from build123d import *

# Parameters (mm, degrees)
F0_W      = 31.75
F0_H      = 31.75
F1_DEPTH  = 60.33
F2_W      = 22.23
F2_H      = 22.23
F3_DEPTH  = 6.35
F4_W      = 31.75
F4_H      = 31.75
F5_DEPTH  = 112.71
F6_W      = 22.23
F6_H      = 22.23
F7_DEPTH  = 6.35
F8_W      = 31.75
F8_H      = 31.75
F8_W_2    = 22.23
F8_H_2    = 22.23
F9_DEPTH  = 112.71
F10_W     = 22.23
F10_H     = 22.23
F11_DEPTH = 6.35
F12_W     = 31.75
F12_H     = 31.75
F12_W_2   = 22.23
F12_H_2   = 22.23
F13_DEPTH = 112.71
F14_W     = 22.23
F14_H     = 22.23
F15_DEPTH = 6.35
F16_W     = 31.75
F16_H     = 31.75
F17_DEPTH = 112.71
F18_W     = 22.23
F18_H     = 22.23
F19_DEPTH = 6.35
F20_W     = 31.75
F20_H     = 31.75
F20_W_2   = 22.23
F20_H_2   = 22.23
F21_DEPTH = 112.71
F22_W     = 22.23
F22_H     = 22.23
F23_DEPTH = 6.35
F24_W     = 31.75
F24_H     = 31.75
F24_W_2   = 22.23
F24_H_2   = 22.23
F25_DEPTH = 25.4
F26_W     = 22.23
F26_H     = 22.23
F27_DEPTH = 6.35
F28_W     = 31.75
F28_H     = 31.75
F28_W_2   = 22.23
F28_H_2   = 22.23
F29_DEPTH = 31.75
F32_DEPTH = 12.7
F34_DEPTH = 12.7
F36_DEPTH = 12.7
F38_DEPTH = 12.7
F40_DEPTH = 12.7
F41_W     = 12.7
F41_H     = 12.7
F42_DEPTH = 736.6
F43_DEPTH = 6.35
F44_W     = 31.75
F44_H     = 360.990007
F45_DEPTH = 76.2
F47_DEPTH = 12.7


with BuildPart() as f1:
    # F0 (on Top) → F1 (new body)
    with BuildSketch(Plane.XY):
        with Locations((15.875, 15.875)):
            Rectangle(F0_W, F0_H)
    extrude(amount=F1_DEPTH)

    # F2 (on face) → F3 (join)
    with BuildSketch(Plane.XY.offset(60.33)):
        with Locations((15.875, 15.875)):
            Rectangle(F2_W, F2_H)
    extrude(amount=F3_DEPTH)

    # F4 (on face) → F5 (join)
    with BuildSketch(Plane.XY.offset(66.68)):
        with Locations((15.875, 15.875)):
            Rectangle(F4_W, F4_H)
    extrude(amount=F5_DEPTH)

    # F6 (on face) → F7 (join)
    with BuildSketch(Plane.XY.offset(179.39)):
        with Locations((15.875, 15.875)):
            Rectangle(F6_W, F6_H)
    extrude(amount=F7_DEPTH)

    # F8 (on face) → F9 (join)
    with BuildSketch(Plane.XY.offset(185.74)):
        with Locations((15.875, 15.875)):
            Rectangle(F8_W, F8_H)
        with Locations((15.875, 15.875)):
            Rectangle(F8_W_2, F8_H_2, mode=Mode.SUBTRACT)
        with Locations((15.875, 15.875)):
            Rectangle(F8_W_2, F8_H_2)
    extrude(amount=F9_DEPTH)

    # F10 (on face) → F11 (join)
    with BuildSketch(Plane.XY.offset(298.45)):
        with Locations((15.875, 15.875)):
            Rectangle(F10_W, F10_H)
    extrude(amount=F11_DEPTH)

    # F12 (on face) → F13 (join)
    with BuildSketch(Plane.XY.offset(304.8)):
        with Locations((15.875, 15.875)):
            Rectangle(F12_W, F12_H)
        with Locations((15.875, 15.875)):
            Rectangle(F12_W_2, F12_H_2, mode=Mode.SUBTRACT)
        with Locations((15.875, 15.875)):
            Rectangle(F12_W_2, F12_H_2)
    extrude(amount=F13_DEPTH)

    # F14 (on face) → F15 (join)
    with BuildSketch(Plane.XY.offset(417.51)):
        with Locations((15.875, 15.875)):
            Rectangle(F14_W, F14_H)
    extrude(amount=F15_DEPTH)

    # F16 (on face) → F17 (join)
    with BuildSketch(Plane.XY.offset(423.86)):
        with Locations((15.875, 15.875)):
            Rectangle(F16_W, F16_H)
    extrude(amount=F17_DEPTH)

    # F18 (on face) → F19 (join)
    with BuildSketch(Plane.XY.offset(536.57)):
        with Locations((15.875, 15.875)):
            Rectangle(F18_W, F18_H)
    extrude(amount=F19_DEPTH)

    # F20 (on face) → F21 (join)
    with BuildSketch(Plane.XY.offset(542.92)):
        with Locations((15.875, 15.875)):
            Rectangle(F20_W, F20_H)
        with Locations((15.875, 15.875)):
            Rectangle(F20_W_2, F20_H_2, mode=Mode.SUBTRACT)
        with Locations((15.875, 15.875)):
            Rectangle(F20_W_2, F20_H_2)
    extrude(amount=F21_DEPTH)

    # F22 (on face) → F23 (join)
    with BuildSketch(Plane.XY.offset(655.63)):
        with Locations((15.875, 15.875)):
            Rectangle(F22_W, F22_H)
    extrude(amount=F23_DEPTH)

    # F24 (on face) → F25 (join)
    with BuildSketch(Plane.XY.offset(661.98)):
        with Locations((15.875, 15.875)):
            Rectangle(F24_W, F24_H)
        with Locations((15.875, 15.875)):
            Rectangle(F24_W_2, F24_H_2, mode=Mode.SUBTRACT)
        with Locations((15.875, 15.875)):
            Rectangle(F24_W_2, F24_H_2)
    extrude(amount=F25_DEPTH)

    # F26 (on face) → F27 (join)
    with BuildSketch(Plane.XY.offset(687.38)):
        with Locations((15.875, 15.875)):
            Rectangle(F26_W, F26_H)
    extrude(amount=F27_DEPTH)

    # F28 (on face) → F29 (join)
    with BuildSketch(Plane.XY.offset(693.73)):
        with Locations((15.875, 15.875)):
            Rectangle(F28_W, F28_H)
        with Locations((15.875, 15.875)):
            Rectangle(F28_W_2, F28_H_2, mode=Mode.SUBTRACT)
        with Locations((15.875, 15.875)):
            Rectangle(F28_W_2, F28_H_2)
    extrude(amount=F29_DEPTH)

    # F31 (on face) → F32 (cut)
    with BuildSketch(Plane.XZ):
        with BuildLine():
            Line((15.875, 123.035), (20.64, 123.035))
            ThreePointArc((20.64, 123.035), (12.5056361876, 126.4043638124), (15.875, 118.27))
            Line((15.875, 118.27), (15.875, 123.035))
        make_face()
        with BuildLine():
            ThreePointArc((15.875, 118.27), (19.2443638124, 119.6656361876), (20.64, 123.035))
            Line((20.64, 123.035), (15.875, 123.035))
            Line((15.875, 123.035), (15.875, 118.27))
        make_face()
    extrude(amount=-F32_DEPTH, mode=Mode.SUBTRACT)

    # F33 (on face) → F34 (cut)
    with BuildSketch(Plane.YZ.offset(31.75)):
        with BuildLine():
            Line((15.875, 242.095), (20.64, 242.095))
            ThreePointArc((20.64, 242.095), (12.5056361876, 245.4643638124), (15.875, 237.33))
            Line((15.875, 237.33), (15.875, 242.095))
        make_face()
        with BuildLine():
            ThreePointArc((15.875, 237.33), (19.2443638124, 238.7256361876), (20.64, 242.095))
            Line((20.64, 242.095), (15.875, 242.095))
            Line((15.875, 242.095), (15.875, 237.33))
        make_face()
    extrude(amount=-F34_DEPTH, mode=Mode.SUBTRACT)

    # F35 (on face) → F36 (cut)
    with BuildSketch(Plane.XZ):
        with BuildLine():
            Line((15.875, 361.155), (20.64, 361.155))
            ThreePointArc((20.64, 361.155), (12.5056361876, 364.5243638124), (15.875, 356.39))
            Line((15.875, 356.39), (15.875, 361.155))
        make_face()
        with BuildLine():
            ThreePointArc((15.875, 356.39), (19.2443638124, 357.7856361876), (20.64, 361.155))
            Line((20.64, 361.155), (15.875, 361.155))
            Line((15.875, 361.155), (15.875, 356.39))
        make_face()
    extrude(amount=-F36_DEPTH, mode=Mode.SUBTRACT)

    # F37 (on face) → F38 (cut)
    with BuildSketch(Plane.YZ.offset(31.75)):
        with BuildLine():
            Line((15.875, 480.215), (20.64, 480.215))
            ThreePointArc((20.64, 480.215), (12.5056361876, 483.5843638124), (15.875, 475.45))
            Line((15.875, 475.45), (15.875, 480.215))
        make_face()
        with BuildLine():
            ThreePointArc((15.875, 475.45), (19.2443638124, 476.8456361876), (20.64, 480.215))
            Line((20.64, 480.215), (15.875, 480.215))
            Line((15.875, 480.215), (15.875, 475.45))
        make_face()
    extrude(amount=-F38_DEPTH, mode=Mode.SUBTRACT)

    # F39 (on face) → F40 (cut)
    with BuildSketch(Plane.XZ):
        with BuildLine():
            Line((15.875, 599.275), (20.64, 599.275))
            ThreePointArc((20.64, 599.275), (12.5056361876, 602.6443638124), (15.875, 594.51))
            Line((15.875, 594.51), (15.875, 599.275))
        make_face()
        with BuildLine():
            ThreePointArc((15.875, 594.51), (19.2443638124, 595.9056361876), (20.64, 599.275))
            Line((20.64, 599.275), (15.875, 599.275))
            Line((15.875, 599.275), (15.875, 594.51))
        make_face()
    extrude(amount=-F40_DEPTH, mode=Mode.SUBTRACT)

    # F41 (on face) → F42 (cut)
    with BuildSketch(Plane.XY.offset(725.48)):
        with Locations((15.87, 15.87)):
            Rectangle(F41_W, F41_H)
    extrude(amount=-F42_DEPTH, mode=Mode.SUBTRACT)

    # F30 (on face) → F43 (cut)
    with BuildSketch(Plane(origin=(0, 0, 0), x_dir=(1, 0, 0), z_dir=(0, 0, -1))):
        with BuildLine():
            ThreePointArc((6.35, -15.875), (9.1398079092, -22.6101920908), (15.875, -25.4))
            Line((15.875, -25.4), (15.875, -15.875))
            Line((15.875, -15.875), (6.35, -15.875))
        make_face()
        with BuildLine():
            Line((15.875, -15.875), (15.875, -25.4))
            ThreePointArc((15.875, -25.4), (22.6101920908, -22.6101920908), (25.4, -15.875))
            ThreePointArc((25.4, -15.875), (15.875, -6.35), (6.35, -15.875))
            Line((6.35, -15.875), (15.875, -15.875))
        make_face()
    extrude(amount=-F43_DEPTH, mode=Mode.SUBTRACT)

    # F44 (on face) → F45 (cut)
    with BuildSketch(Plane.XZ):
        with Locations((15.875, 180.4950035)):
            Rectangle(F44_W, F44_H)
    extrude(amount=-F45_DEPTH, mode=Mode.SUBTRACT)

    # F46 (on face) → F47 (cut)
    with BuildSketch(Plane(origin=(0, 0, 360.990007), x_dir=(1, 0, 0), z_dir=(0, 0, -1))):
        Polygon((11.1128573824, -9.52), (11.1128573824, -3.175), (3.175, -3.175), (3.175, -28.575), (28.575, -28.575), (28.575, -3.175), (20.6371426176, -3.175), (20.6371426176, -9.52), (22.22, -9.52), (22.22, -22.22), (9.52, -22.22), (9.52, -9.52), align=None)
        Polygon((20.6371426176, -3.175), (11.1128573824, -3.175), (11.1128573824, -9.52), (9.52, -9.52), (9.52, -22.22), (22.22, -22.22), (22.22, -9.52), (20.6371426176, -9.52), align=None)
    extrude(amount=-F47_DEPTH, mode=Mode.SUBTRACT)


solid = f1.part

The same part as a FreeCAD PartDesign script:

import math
import FreeCAD as App
import Part
import Sketcher
Q = App.Units.Quantity

doc = App.newDocument("Part")
body = doc.addObject("PartDesign::Body", "Body")

sketch1 = body.newObject("Sketcher::SketchObject", "Sketch")
sketch1.AttachmentSupport = (doc.getObject("XY_Plane"), [""])
sketch1.MapMode = "FlatFace"
sketch1.addGeometry(Part.LineSegment(App.Vector(0, 31.75, 0), App.Vector(0, 0, 0)), False)
sketch1.addGeometry(Part.LineSegment(App.Vector(0, 0, 0), App.Vector(31.75, 0, 0)), False)
sketch1.addGeometry(Part.LineSegment(App.Vector(31.75, 0, 0), App.Vector(31.75, 31.75, 0)), False)
sketch1.addGeometry(Part.LineSegment(App.Vector(31.75, 31.75, 0), App.Vector(0, 31.75, 0)), False)
sketch1.addConstraint(Sketcher.Constraint("Coincident", 0, 2, 1, 1))
sketch1.addConstraint(Sketcher.Constraint("Coincident", 1, 2, 2, 1))
sketch1.addConstraint(Sketcher.Constraint("Coincident", 2, 2, 3, 1))
sketch1.addConstraint(Sketcher.Constraint("Coincident", 3, 2, 0, 1))
sketch1.addConstraint(Sketcher.Constraint("Vertical", 0))
sketch1.addConstraint(Sketcher.Constraint("Horizontal", 1))
sketch1.addConstraint(Sketcher.Constraint("Vertical", 2))
sketch1.addConstraint(Sketcher.Constraint("Horizontal", 3))
sketch1.addConstraint(Sketcher.Constraint("Coincident", 0, 2, -1, 1))
sketch1.addConstraint(Sketcher.Constraint("Equal", 3, 0))
sketch1.addConstraint(Sketcher.Constraint("DistanceX", 1, 1, 1, 2, Q("1.25 in")))
pad1 = body.newObject("PartDesign::Pad", "Pad")
pad1.Profile = sketch1
pad1.Length = 60.33

sketch2 = body.newObject("Sketcher::SketchObject", "Sketch001")
sketch2.AttachmentSupport = (doc.getObject("XY_Plane"), [""])
sketch2.MapMode = "FlatFace"
sketch2.AttachmentOffset = App.Placement(App.Vector(0, 0, 60.33), App.Rotation())
sketch2.addGeometry(Part.LineSegment(App.Vector(4.76, 26.99, 0), App.Vector(4.76, 4.76, 0)), False)
sketch2.addGeometry(Part.LineSegment(App.Vector(4.76, 4.76, 0), App.Vector(26.99, 4.76, 0)), False)
sketch2.addGeometry(Part.LineSegment(App.Vector(26.99, 4.76, 0), App.Vector(26.99, 26.99, 0)), False)
sketch2.addGeometry(Part.LineSegment(App.Vector(26.99, 26.99, 0), App.Vector(4.76, 26.99, 0)), False)
sketch2.addConstraint(Sketcher.Constraint("Coincident", 0, 2, 1, 1))
sketch2.addConstraint(Sketcher.Constraint("Coincident", 1, 2, 2, 1))
sketch2.addConstraint(Sketcher.Constraint("Coincident", 2, 2, 3, 1))
sketch2.addConstraint(Sketcher.Constraint("Coincident", 3, 2, 0, 1))
sketch2.addConstraint(Sketcher.Constraint("Vertical", 0))
sketch2.addConstraint(Sketcher.Constraint("Horizontal", 1))
sketch2.addConstraint(Sketcher.Constraint("Vertical", 2))
sketch2.addConstraint(Sketcher.Constraint("Horizontal", 3))
sketch2.addConstraint(Sketcher.Constraint("Equal", 3, 0))
sketch2.addConstraint(Sketcher.Constraint("DistanceX", 1, 1, 1, 2, Q("22.23 mm")))
sketch2.addConstraint(Sketcher.Constraint("DistanceX", -1, 1, 0, 2, Q("4.76 mm")))
sketch2.addConstraint(Sketcher.Constraint("DistanceY", -1, 1, 0, 2, Q("4.76 mm")))
pad2 = body.newObject("PartDesign::Pad", "Pad001")
pad2.Profile = sketch2
pad2.Length = Q("0.25 in")

sketch3 = body.newObject("Sketcher::SketchObject", "Sketch002")
sketch3.AttachmentSupport = (doc.getObject("XY_Plane"), [""])
sketch3.MapMode = "FlatFace"
sketch3.AttachmentOffset = App.Placement(App.Vector(0, 0, 66.68), App.Rotation())
sketch3.addGeometry(Part.LineSegment(App.Vector(0, 31.75, 0), App.Vector(0, 0, 0)), False)
sketch3.addGeometry(Part.LineSegment(App.Vector(0, 0, 0), App.Vector(31.75, 0, 0)), False)
sketch3.addGeometry(Part.LineSegment(App.Vector(31.75, 0, 0), App.Vector(31.75, 31.75, 0)), False)
sketch3.addGeometry(Part.LineSegment(App.Vector(31.75, 31.75, 0), App.Vector(0, 31.75, 0)), False)
sketch3.addConstraint(Sketcher.Constraint("Coincident", 0, 2, 1, 1))
sketch3.addConstraint(Sketcher.Constraint("Coincident", 1, 2, 2, 1))
sketch3.addConstraint(Sketcher.Constraint("Coincident", 2, 2, 3, 1))
sketch3.addConstraint(Sketcher.Constraint("Coincident", 3, 2, 0, 1))
sketch3.addConstraint(Sketcher.Constraint("Vertical", 0))
sketch3.addConstraint(Sketcher.Constraint("Horizontal", 1))
sketch3.addConstraint(Sketcher.Constraint("Vertical", 2))
sketch3.addConstraint(Sketcher.Constraint("Horizontal", 3))
sketch3.addConstraint(Sketcher.Constraint("Coincident", 0, 2, -1, 1))
sketch3.addConstraint(Sketcher.Constraint("Equal", 3, 0))
sketch3.addConstraint(Sketcher.Constraint("DistanceX", 1, 1, 1, 2, Q("1.25 in")))
pad3 = body.newObject("PartDesign::Pad", "Pad002")
pad3.Profile = sketch3
pad3.Length = 112.71

sketch4 = body.newObject("Sketcher::SketchObject", "Sketch003")
sketch4.AttachmentSupport = (doc.getObject("XY_Plane"), [""])
sketch4.MapMode = "FlatFace"
sketch4.AttachmentOffset = App.Placement(App.Vector(0, 0, 179.39), App.Rotation())
sketch4.addGeometry(Part.LineSegment(App.Vector(4.76, 26.99, 0), App.Vector(4.76, 4.76, 0)), False)
sketch4.addGeometry(Part.LineSegment(App.Vector(4.76, 4.76, 0), App.Vector(26.99, 4.76, 0)), False)
sketch4.addGeometry(Part.LineSegment(App.Vector(26.99, 4.76, 0), App.Vector(26.99, 26.99, 0)), False)
sketch4.addGeometry(Part.LineSegment(App.Vector(26.99, 26.99, 0), App.Vector(4.76, 26.99, 0)), False)
sketch4.addConstraint(Sketcher.Constraint("Coincident", 0, 2, 1, 1))
sketch4.addConstraint(Sketcher.Constraint("Coincident", 1, 2, 2, 1))
sketch4.addConstraint(Sketcher.Constraint("Coincident", 2, 2, 3, 1))
sketch4.addConstraint(Sketcher.Constraint("Coincident", 3, 2, 0, 1))
sketch4.addConstraint(Sketcher.Constraint("Vertical", 0))
sketch4.addConstraint(Sketcher.Constraint("Horizontal", 1))
sketch4.addConstraint(Sketcher.Constraint("Vertical", 2))
sketch4.addConstraint(Sketcher.Constraint("Horizontal", 3))
sketch4.addConstraint(Sketcher.Constraint("Equal", 3, 0))
sketch4.addConstraint(Sketcher.Constraint("DistanceX", 1, 1, 1, 2, Q("22.23 mm")))
sketch4.addConstraint(Sketcher.Constraint("DistanceX", -1, 1, 0, 2, Q("4.76 mm")))
sketch4.addConstraint(Sketcher.Constraint("DistanceY", -1, 1, 0, 2, Q("4.76 mm")))
pad4 = body.newObject("PartDesign::Pad", "Pad003")
pad4.Profile = sketch4
pad4.Length = Q("0.25 in")

sketch5 = body.newObject("Sketcher::SketchObject", "Sketch004")
sketch5.AttachmentSupport = (doc.getObject("XY_Plane"), [""])
sketch5.MapMode = "FlatFace"
sketch5.AttachmentOffset = App.Placement(App.Vector(0, 0, 185.74), App.Rotation())
sketch5.addGeometry(Part.LineSegment(App.Vector(0, 31.75, 0), App.Vector(0, 0, 0)), False)
sketch5.addGeometry(Part.LineSegment(App.Vector(0, 0, 0), App.Vector(31.75, 0, 0)), False)
sketch5.addGeometry(Part.LineSegment(App.Vector(31.75, 0, 0), App.Vector(31.75, 31.75, 0)), False)
sketch5.addGeometry(Part.LineSegment(App.Vector(31.75, 31.75, 0), App.Vector(0, 31.75, 0)), False)
sketch5.addConstraint(Sketcher.Constraint("Coincident", 0, 2, 1, 1))
sketch5.addConstraint(Sketcher.Constraint("Coincident", 1, 2, 2, 1))
sketch5.addConstraint(Sketcher.Constraint("Coincident", 2, 2, 3, 1))
sketch5.addConstraint(Sketcher.Constraint("Coincident", 3, 2, 0, 1))
sketch5.addConstraint(Sketcher.Constraint("Vertical", 0))
sketch5.addConstraint(Sketcher.Constraint("Horizontal", 1))
sketch5.addConstraint(Sketcher.Constraint("Vertical", 2))
sketch5.addConstraint(Sketcher.Constraint("Horizontal", 3))
sketch5.addConstraint(Sketcher.Constraint("Coincident", 0, 2, -1, 1))
sketch5.addConstraint(Sketcher.Constraint("Equal", 3, 0))
sketch5.addConstraint(Sketcher.Constraint("DistanceX", 1, 1, 1, 2, Q("1.25 in")))
pad5 = body.newObject("PartDesign::Pad", "Pad004")
pad5.Profile = sketch5
pad5.Length = 112.71

sketch6 = body.newObject("Sketcher::SketchObject", "Sketch005")
sketch6.AttachmentSupport = (doc.getObject("XY_Plane"), [""])
sketch6.MapMode = "FlatFace"
sketch6.AttachmentOffset = App.Placement(App.Vector(0, 0, 11.75 * 25.4), App.Rotation())
sketch6.addGeometry(Part.LineSegment(App.Vector(4.76, 26.99, 0), App.Vector(4.76, 4.76, 0)), False)
sketch6.addGeometry(Part.LineSegment(App.Vector(4.76, 4.76, 0), App.Vector(26.99, 4.76, 0)), False)
sketch6.addGeometry(Part.LineSegment(App.Vector(26.99, 4.76, 0), App.Vector(26.99, 26.99, 0)), False)
sketch6.addGeometry(Part.LineSegment(App.Vector(26.99, 26.99, 0), App.Vector(4.76, 26.99, 0)), False)
sketch6.addConstraint(Sketcher.Constraint("Coincident", 0, 2, 1, 1))
sketch6.addConstraint(Sketcher.Constraint("Coincident", 1, 2, 2, 1))
sketch6.addConstraint(Sketcher.Constraint("Coincident", 2, 2, 3, 1))
sketch6.addConstraint(Sketcher.Constraint("Coincident", 3, 2, 0, 1))
sketch6.addConstraint(Sketcher.Constraint("Vertical", 0))
sketch6.addConstraint(Sketcher.Constraint("Horizontal", 1))
sketch6.addConstraint(Sketcher.Constraint("Vertical", 2))
sketch6.addConstraint(Sketcher.Constraint("Horizontal", 3))
sketch6.addConstraint(Sketcher.Constraint("Equal", 3, 0))
sketch6.addConstraint(Sketcher.Constraint("DistanceX", 1, 1, 1, 2, Q("22.23 mm")))
sketch6.addConstraint(Sketcher.Constraint("DistanceX", -1, 1, 0, 2, Q("4.76 mm")))
sketch6.addConstraint(Sketcher.Constraint("DistanceY", -1, 1, 0, 2, Q("4.76 mm")))
pad6 = body.newObject("PartDesign::Pad", "Pad005")
pad6.Profile = sketch6
pad6.Length = Q("0.25 in")

sketch7 = body.newObject("Sketcher::SketchObject", "Sketch006")
sketch7.AttachmentSupport = (doc.getObject("XY_Plane"), [""])
sketch7.MapMode = "FlatFace"
sketch7.AttachmentOffset = App.Placement(App.Vector(0, 0, 12 * 25.4), App.Rotation())
sketch7.addGeometry(Part.LineSegment(App.Vector(0, 31.75, 0), App.Vector(0, 0, 0)), False)
sketch7.addGeometry(Part.LineSegment(App.Vector(0, 0, 0), App.Vector(31.75, 0, 0)), False)
sketch7.addGeometry(Part.LineSegment(App.Vector(31.75, 0, 0), App.Vector(31.75, 31.75, 0)), False)
sketch7.addGeometry(Part.LineSegment(App.Vector(31.75, 31.75, 0), App.Vector(0, 31.75, 0)), False)
sketch7.addConstraint(Sketcher.Constraint("Coincident", 0, 2, 1, 1))
sketch7.addConstraint(Sketcher.Constraint("Coincident", 1, 2, 2, 1))
sketch7.addConstraint(Sketcher.Constraint("Coincident", 2, 2, 3, 1))
sketch7.addConstraint(Sketcher.Constraint("Coincident", 3, 2, 0, 1))
sketch7.addConstraint(Sketcher.Constraint("Vertical", 0))
sketch7.addConstraint(Sketcher.Constraint("Horizontal", 1))
sketch7.addConstraint(Sketcher.Constraint("Vertical", 2))
sketch7.addConstraint(Sketcher.Constraint("Horizontal", 3))
sketch7.addConstraint(Sketcher.Constraint("Coincident", 0, 2, -1, 1))
sketch7.addConstraint(Sketcher.Constraint("Equal", 3, 0))
sketch7.addConstraint(Sketcher.Constraint("DistanceX", 1, 1, 1, 2, Q("1.25 in")))
pad7 = body.newObject("PartDesign::Pad", "Pad006")
pad7.Profile = sketch7
pad7.Length = 112.71

sketch8 = body.newObject("Sketcher::SketchObject", "Sketch007")
sketch8.AttachmentSupport = (doc.getObject("XY_Plane"), [""])
sketch8.MapMode = "FlatFace"
sketch8.AttachmentOffset = App.Placement(App.Vector(0, 0, 417.51), App.Rotation())
sketch8.addGeometry(Part.LineSegment(App.Vector(4.76, 26.99, 0), App.Vector(4.76, 4.76, 0)), False)
sketch8.addGeometry(Part.LineSegment(App.Vector(4.76, 4.76, 0), App.Vector(26.99, 4.76, 0)), False)
sketch8.addGeometry(Part.LineSegment(App.Vector(26.99, 4.76, 0), App.Vector(26.99, 26.99, 0)), False)
sketch8.addGeometry(Part.LineSegment(App.Vector(26.99, 26.99, 0), App.Vector(4.76, 26.99, 0)), False)
sketch8.addConstraint(Sketcher.Constraint("Coincident", 0, 2, 1, 1))
sketch8.addConstraint(Sketcher.Constraint("Coincident", 1, 2, 2, 1))
sketch8.addConstraint(Sketcher.Constraint("Coincident", 2, 2, 3, 1))
sketch8.addConstraint(Sketcher.Constraint("Coincident", 3, 2, 0, 1))
sketch8.addConstraint(Sketcher.Constraint("Vertical", 0))
sketch8.addConstraint(Sketcher.Constraint("Horizontal", 1))
sketch8.addConstraint(Sketcher.Constraint("Vertical", 2))
sketch8.addConstraint(Sketcher.Constraint("Horizontal", 3))
sketch8.addConstraint(Sketcher.Constraint("Equal", 3, 0))
sketch8.addConstraint(Sketcher.Constraint("DistanceX", 1, 1, 1, 2, Q("22.23 mm")))
sketch8.addConstraint(Sketcher.Constraint("DistanceX", -1, 1, 0, 2, Q("4.76 mm")))
sketch8.addConstraint(Sketcher.Constraint("DistanceY", -1, 1, 0, 2, Q("4.76 mm")))
pad8 = body.newObject("PartDesign::Pad", "Pad007")
pad8.Profile = sketch8
pad8.Length = Q("0.25 in")

sketch9 = body.newObject("Sketcher::SketchObject", "Sketch008")
sketch9.AttachmentSupport = (doc.getObject("XY_Plane"), [""])
sketch9.MapMode = "FlatFace"
sketch9.AttachmentOffset = App.Placement(App.Vector(0, 0, 423.86), App.Rotation())
sketch9.addGeometry(Part.LineSegment(App.Vector(0, 31.75, 0), App.Vector(0, 0, 0)), False)
sketch9.addGeometry(Part.LineSegment(App.Vector(0, 0, 0), App.Vector(31.75, 0, 0)), False)
sketch9.addGeometry(Part.LineSegment(App.Vector(31.75, 0, 0), App.Vector(31.75, 31.75, 0)), False)
sketch9.addGeometry(Part.LineSegment(App.Vector(31.75, 31.75, 0), App.Vector(0, 31.75, 0)), False)
sketch9.addConstraint(Sketcher.Constraint("Coincident", 0, 2, 1, 1))
sketch9.addConstraint(Sketcher.Constraint("Coincident", 1, 2, 2, 1))
sketch9.addConstraint(Sketcher.Constraint("Coincident", 2, 2, 3, 1))
sketch9.addConstraint(Sketcher.Constraint("Coincident", 3, 2, 0, 1))
sketch9.addConstraint(Sketcher.Constraint("Vertical", 0))
sketch9.addConstraint(Sketcher.Constraint("Horizontal", 1))
sketch9.addConstraint(Sketcher.Constraint("Vertical", 2))
sketch9.addConstraint(Sketcher.Constraint("Horizontal", 3))
sketch9.addConstraint(Sketcher.Constraint("Coincident", 0, 2, -1, 1))
sketch9.addConstraint(Sketcher.Constraint("Equal", 3, 0))
sketch9.addConstraint(Sketcher.Constraint("DistanceX", 1, 1, 1, 2, Q("1.25 in")))
pad9 = body.newObject("PartDesign::Pad", "Pad008")
pad9.Profile = sketch9
pad9.Length = 112.71

sketch10 = body.newObject("Sketcher::SketchObject", "Sketch009")
sketch10.AttachmentSupport = (doc.getObject("XY_Plane"), [""])
sketch10.MapMode = "FlatFace"
sketch10.AttachmentOffset = App.Placement(App.Vector(0, 0, 536.57), App.Rotation())
sketch10.addGeometry(Part.LineSegment(App.Vector(4.76, 26.99, 0), App.Vector(4.76, 4.76, 0)), False)
sketch10.addGeometry(Part.LineSegment(App.Vector(4.76, 4.76, 0), App.Vector(26.99, 4.76, 0)), False)
sketch10.addGeometry(Part.LineSegment(App.Vector(26.99, 4.76, 0), App.Vector(26.99, 26.99, 0)), False)
sketch10.addGeometry(Part.LineSegment(App.Vector(26.99, 26.99, 0), App.Vector(4.76, 26.99, 0)), False)
sketch10.addConstraint(Sketcher.Constraint("Coincident", 0, 2, 1, 1))
sketch10.addConstraint(Sketcher.Constraint("Coincident", 1, 2, 2, 1))
sketch10.addConstraint(Sketcher.Constraint("Coincident", 2, 2, 3, 1))
sketch10.addConstraint(Sketcher.Constraint("Coincident", 3, 2, 0, 1))
sketch10.addConstraint(Sketcher.Constraint("Vertical", 0))
sketch10.addConstraint(Sketcher.Constraint("Horizontal", 1))
sketch10.addConstraint(Sketcher.Constraint("Vertical", 2))
sketch10.addConstraint(Sketcher.Constraint("Horizontal", 3))
sketch10.addConstraint(Sketcher.Constraint("Equal", 3, 0))
sketch10.addConstraint(Sketcher.Constraint("DistanceX", 1, 1, 1, 2, Q("22.23 mm")))
sketch10.addConstraint(Sketcher.Constraint("DistanceX", -1, 1, 0, 2, Q("4.76 mm")))
sketch10.addConstraint(Sketcher.Constraint("DistanceY", -1, 1, 0, 2, Q("4.76 mm")))
pad10 = body.newObject("PartDesign::Pad", "Pad009")
pad10.Profile = sketch10
pad10.Length = Q("0.25 in")

sketch11 = body.newObject("Sketcher::SketchObject", "Sketch010")
sketch11.AttachmentSupport = (doc.getObject("XY_Plane"), [""])
sketch11.MapMode = "FlatFace"
sketch11.AttachmentOffset = App.Placement(App.Vector(0, 0, 542.92), App.Rotation())
sketch11.addGeometry(Part.LineSegment(App.Vector(0, 31.75, 0), App.Vector(0, 0, 0)), False)
sketch11.addGeometry(Part.LineSegment(App.Vector(0, 0, 0), App.Vector(31.75, 0, 0)), False)
sketch11.addGeometry(Part.LineSegment(App.Vector(31.75, 0, 0), App.Vector(31.75, 31.75, 0)), False)
sketch11.addGeometry(Part.LineSegment(App.Vector(31.75, 31.75, 0), App.Vector(0, 31.75, 0)), False)
sketch11.addConstraint(Sketcher.Constraint("Coincident", 0, 2, 1, 1))
sketch11.addConstraint(Sketcher.Constraint("Coincident", 1, 2, 2, 1))
sketch11.addConstraint(Sketcher.Constraint("Coincident", 2, 2, 3, 1))
sketch11.addConstraint(Sketcher.Constraint("Coincident", 3, 2, 0, 1))
sketch11.addConstraint(Sketcher.Constraint("Vertical", 0))
sketch11.addConstraint(Sketcher.Constraint("Horizontal", 1))
sketch11.addConstraint(Sketcher.Constraint("Vertical", 2))
sketch11.addConstraint(Sketcher.Constraint("Horizontal", 3))
sketch11.addConstraint(Sketcher.Constraint("Coincident", 0, 2, -1, 1))
sketch11.addConstraint(Sketcher.Constraint("Equal", 3, 0))
sketch11.addConstraint(Sketcher.Constraint("DistanceX", 1, 1, 1, 2, Q("1.25 in")))
pad11 = body.newObject("PartDesign::Pad", "Pad010")
pad11.Profile = sketch11
pad11.Length = 112.71

sketch12 = body.newObject("Sketcher::SketchObject", "Sketch011")
sketch12.AttachmentSupport = (doc.getObject("XY_Plane"), [""])
sketch12.MapMode = "FlatFace"
sketch12.AttachmentOffset = App.Placement(App.Vector(0, 0, 655.63), App.Rotation())
sketch12.addGeometry(Part.LineSegment(App.Vector(4.76, 26.99, 0), App.Vector(4.76, 4.76, 0)), False)
sketch12.addGeometry(Part.LineSegment(App.Vector(4.76, 4.76, 0), App.Vector(26.99, 4.76, 0)), False)
sketch12.addGeometry(Part.LineSegment(App.Vector(26.99, 4.76, 0), App.Vector(26.99, 26.99, 0)), False)
sketch12.addGeometry(Part.LineSegment(App.Vector(26.99, 26.99, 0), App.Vector(4.76, 26.99, 0)), False)
sketch12.addConstraint(Sketcher.Constraint("Coincident", 0, 2, 1, 1))
sketch12.addConstraint(Sketcher.Constraint("Coincident", 1, 2, 2, 1))
sketch12.addConstraint(Sketcher.Constraint("Coincident", 2, 2, 3, 1))
sketch12.addConstraint(Sketcher.Constraint("Coincident", 3, 2, 0, 1))
sketch12.addConstraint(Sketcher.Constraint("Vertical", 0))
sketch12.addConstraint(Sketcher.Constraint("Horizontal", 1))
sketch12.addConstraint(Sketcher.Constraint("Vertical", 2))
sketch12.addConstraint(Sketcher.Constraint("Horizontal", 3))
sketch12.addConstraint(Sketcher.Constraint("Equal", 3, 0))
sketch12.addConstraint(Sketcher.Constraint("DistanceX", 1, 1, 1, 2, Q("22.23 mm")))
sketch12.addConstraint(Sketcher.Constraint("DistanceX", -1, 1, 0, 2, Q("4.76 mm")))
sketch12.addConstraint(Sketcher.Constraint("DistanceY", -1, 1, 0, 2, Q("4.76 mm")))
pad12 = body.newObject("PartDesign::Pad", "Pad011")
pad12.Profile = sketch12
pad12.Length = Q("0.25 in")

sketch13 = body.newObject("Sketcher::SketchObject", "Sketch012")
sketch13.AttachmentSupport = (doc.getObject("XY_Plane"), [""])
sketch13.MapMode = "FlatFace"
sketch13.AttachmentOffset = App.Placement(App.Vector(0, 0, 661.98), App.Rotation())
sketch13.addGeometry(Part.LineSegment(App.Vector(0, 31.75, 0), App.Vector(0, 0, 0)), False)
sketch13.addGeometry(Part.LineSegment(App.Vector(0, 0, 0), App.Vector(31.75, 0, 0)), False)
sketch13.addGeometry(Part.LineSegment(App.Vector(31.75, 0, 0), App.Vector(31.75, 31.75, 0)), False)
sketch13.addGeometry(Part.LineSegment(App.Vector(31.75, 31.75, 0), App.Vector(0, 31.75, 0)), False)
sketch13.addConstraint(Sketcher.Constraint("Coincident", 0, 2, 1, 1))
sketch13.addConstraint(Sketcher.Constraint("Coincident", 1, 2, 2, 1))
sketch13.addConstraint(Sketcher.Constraint("Coincident", 2, 2, 3, 1))
sketch13.addConstraint(Sketcher.Constraint("Coincident", 3, 2, 0, 1))
sketch13.addConstraint(Sketcher.Constraint("Vertical", 0))
sketch13.addConstraint(Sketcher.Constraint("Horizontal", 1))
sketch13.addConstraint(Sketcher.Constraint("Vertical", 2))
sketch13.addConstraint(Sketcher.Constraint("Horizontal", 3))
sketch13.addConstraint(Sketcher.Constraint("Coincident", 0, 2, -1, 1))
sketch13.addConstraint(Sketcher.Constraint("Equal", 3, 0))
sketch13.addConstraint(Sketcher.Constraint("DistanceX", 1, 1, 1, 2, Q("1.25 in")))
pad13 = body.newObject("PartDesign::Pad", "Pad012")
pad13.Profile = sketch13
pad13.Length = Q("1 in")

sketch14 = body.newObject("Sketcher::SketchObject", "Sketch013")
sketch14.AttachmentSupport = (doc.getObject("XY_Plane"), [""])
sketch14.MapMode = "FlatFace"
sketch14.AttachmentOffset = App.Placement(App.Vector(0, 0, 687.38), App.Rotation())
sketch14.addGeometry(Part.LineSegment(App.Vector(4.76, 26.99, 0), App.Vector(4.76, 4.76, 0)), False)
sketch14.addGeometry(Part.LineSegment(App.Vector(4.76, 4.76, 0), App.Vector(26.99, 4.76, 0)), False)
sketch14.addGeometry(Part.LineSegment(App.Vector(26.99, 4.76, 0), App.Vector(26.99, 26.99, 0)), False)
sketch14.addGeometry(Part.LineSegment(App.Vector(26.99, 26.99, 0), App.Vector(4.76, 26.99, 0)), False)
sketch14.addConstraint(Sketcher.Constraint("Coincident", 0, 2, 1, 1))
sketch14.addConstraint(Sketcher.Constraint("Coincident", 1, 2, 2, 1))
sketch14.addConstraint(Sketcher.Constraint("Coincident", 2, 2, 3, 1))
sketch14.addConstraint(Sketcher.Constraint("Coincident", 3, 2, 0, 1))
sketch14.addConstraint(Sketcher.Constraint("Vertical", 0))
sketch14.addConstraint(Sketcher.Constraint("Horizontal", 1))
sketch14.addConstraint(Sketcher.Constraint("Vertical", 2))
sketch14.addConstraint(Sketcher.Constraint("Horizontal", 3))
sketch14.addConstraint(Sketcher.Constraint("Equal", 3, 0))
sketch14.addConstraint(Sketcher.Constraint("DistanceX", 1, 1, 1, 2, Q("22.23 mm")))
sketch14.addConstraint(Sketcher.Constraint("DistanceX", -1, 1, 0, 2, Q("4.76 mm")))
sketch14.addConstraint(Sketcher.Constraint("DistanceY", -1, 1, 0, 2, Q("4.76 mm")))
pad14 = body.newObject("PartDesign::Pad", "Pad013")
pad14.Profile = sketch14
pad14.Length = Q("0.25 in")

sketch15 = body.newObject("Sketcher::SketchObject", "Sketch014")
sketch15.AttachmentSupport = (doc.getObject("XY_Plane"), [""])
sketch15.MapMode = "FlatFace"
sketch15.AttachmentOffset = App.Placement(App.Vector(0, 0, 693.73), App.Rotation())
sketch15.addGeometry(Part.LineSegment(App.Vector(0, 31.75, 0), App.Vector(0, 0, 0)), False)
sketch15.addGeometry(Part.LineSegment(App.Vector(0, 0, 0), App.Vector(31.75, 0, 0)), False)
sketch15.addGeometry(Part.LineSegment(App.Vector(31.75, 0, 0), App.Vector(31.75, 31.75, 0)), False)
sketch15.addGeometry(Part.LineSegment(App.Vector(31.75, 31.75, 0), App.Vector(0, 31.75, 0)), False)
sketch15.addConstraint(Sketcher.Constraint("Coincident", 0, 2, 1, 1))
sketch15.addConstraint(Sketcher.Constraint("Coincident", 1, 2, 2, 1))
sketch15.addConstraint(Sketcher.Constraint("Coincident", 2, 2, 3, 1))
sketch15.addConstraint(Sketcher.Constraint("Coincident", 3, 2, 0, 1))
sketch15.addConstraint(Sketcher.Constraint("Vertical", 0))
sketch15.addConstraint(Sketcher.Constraint("Horizontal", 1))
sketch15.addConstraint(Sketcher.Constraint("Vertical", 2))
sketch15.addConstraint(Sketcher.Constraint("Horizontal", 3))
sketch15.addConstraint(Sketcher.Constraint("Coincident", 0, 2, -1, 1))
sketch15.addConstraint(Sketcher.Constraint("Equal", 3, 0))
sketch15.addConstraint(Sketcher.Constraint("DistanceX", 1, 1, 1, 2, Q("1.25 in")))
pad15 = body.newObject("PartDesign::Pad", "Pad014")
pad15.Profile = sketch15
pad15.Length = Q("1.25 in")

sketch16 = body.newObject("Sketcher::SketchObject", "Sketch015")
sketch16.AttachmentSupport = (doc.getObject("XZ_Plane"), [""])
sketch16.MapMode = "FlatFace"
sketch16.addGeometry(Part.ArcOfCircle(Part.Circle(App.Vector(15.875, 123.035, 0), App.Vector(0, 0, 1), 4.765), math.radians(0), math.radians(270)), False)
sketch16.addGeometry(Part.ArcOfCircle(Part.Circle(App.Vector(15.875, 123.035, 0), App.Vector(0, 0, 1), 4.765), math.radians(-90), math.radians(0)), False)
sketch16.addConstraint(Sketcher.Constraint("Tangent", 0, 1, 1, 2))
sketch16.addConstraint(Sketcher.Constraint("Coincident", 1, 1, 0, 2))
sketch16.addConstraint(Sketcher.Constraint("Horizontal", 1, 3, 0, 1))
sketch16.addConstraint(Sketcher.Constraint("Vertical", 0, 3, 1, 1))
sketch16.addConstraint(Sketcher.Constraint("Radius", 0, Q("4.765 mm")))
sketch16.addConstraint(Sketcher.Constraint("DistanceX", -1, 1, 0, 3, Q("0.625 in")))
sketch16.addConstraint(Sketcher.Constraint("DistanceY", -1, 1, 0, 3, Q("123.035 mm")))
pocket1 = body.newObject("PartDesign::Pocket", "Pocket")
pocket1.Profile = sketch16
pocket1.Length = Q("0.5 in")

sketch17 = body.newObject("Sketcher::SketchObject", "Sketch016")
sketch17.AttachmentSupport = (doc.getObject("YZ_Plane"), [""])
sketch17.MapMode = "FlatFace"
sketch17.AttachmentOffset = App.Placement(App.Vector(0, 0, 1.25 * 25.4), App.Rotation())
sketch17.addGeometry(Part.ArcOfCircle(Part.Circle(App.Vector(15.875, 242.095, 0), App.Vector(0, 0, 1), 4.765), math.radians(0), math.radians(270)), False)
sketch17.addGeometry(Part.ArcOfCircle(Part.Circle(App.Vector(15.875, 242.095, 0), App.Vector(0, 0, 1), 4.765), math.radians(-90), math.radians(0)), False)
sketch17.addConstraint(Sketcher.Constraint("Tangent", 0, 1, 1, 2))
sketch17.addConstraint(Sketcher.Constraint("Coincident", 1, 1, 0, 2))
sketch17.addConstraint(Sketcher.Constraint("Horizontal", 1, 3, 0, 1))
sketch17.addConstraint(Sketcher.Constraint("Vertical", 0, 3, 1, 1))
sketch17.addConstraint(Sketcher.Constraint("Radius", 0, Q("4.765 mm")))
sketch17.addConstraint(Sketcher.Constraint("DistanceX", -1, 1, 0, 3, Q("0.625 in")))
sketch17.addConstraint(Sketcher.Constraint("DistanceY", -1, 1, 0, 3, Q("242.095 mm")))
pocket2 = body.newObject("PartDesign::Pocket", "Pocket001")
pocket2.Profile = sketch17
pocket2.Length = Q("0.5 in")

sketch18 = body.newObject("Sketcher::SketchObject", "Sketch017")
sketch18.AttachmentSupport = (doc.getObject("XZ_Plane"), [""])
sketch18.MapMode = "FlatFace"
sketch18.addGeometry(Part.ArcOfCircle(Part.Circle(App.Vector(15.875, 361.155, 0), App.Vector(0, 0, 1), 4.765), math.radians(0), math.radians(270)), False)
sketch18.addGeometry(Part.ArcOfCircle(Part.Circle(App.Vector(15.875, 361.155, 0), App.Vector(0, 0, 1), 4.765), math.radians(-90), math.radians(0)), False)
sketch18.addConstraint(Sketcher.Constraint("Tangent", 0, 1, 1, 2))
sketch18.addConstraint(Sketcher.Constraint("Coincident", 1, 1, 0, 2))
sketch18.addConstraint(Sketcher.Constraint("Horizontal", 1, 3, 0, 1))
sketch18.addConstraint(Sketcher.Constraint("Vertical", 0, 3, 1, 1))
sketch18.addConstraint(Sketcher.Constraint("Radius", 0, Q("4.765 mm")))
sketch18.addConstraint(Sketcher.Constraint("DistanceX", -1, 1, 0, 3, Q("0.625 in")))
sketch18.addConstraint(Sketcher.Constraint("DistanceY", -1, 1, 0, 3, Q("361.155 mm")))
pocket3 = body.newObject("PartDesign::Pocket", "Pocket002")
pocket3.Profile = sketch18
pocket3.Length = Q("0.5 in")

sketch19 = body.newObject("Sketcher::SketchObject", "Sketch018")
sketch19.AttachmentSupport = (doc.getObject("YZ_Plane"), [""])
sketch19.MapMode = "FlatFace"
sketch19.AttachmentOffset = App.Placement(App.Vector(0, 0, 1.25 * 25.4), App.Rotation())
sketch19.addGeometry(Part.ArcOfCircle(Part.Circle(App.Vector(15.875, 480.215, 0), App.Vector(0, 0, 1), 4.765), math.radians(0), math.radians(270)), False)
sketch19.addGeometry(Part.ArcOfCircle(Part.Circle(App.Vector(15.875, 480.215, 0), App.Vector(0, 0, 1), 4.765), math.radians(-90), math.radians(0)), False)
sketch19.addConstraint(Sketcher.Constraint("Tangent", 0, 1, 1, 2))
sketch19.addConstraint(Sketcher.Constraint("Coincident", 1, 1, 0, 2))
sketch19.addConstraint(Sketcher.Constraint("Horizontal", 1, 3, 0, 1))
sketch19.addConstraint(Sketcher.Constraint("Vertical", 0, 3, 1, 1))
sketch19.addConstraint(Sketcher.Constraint("Radius", 0, Q("4.765 mm")))
sketch19.addConstraint(Sketcher.Constraint("DistanceX", -1, 1, 0, 3, Q("0.625 in")))
sketch19.addConstraint(Sketcher.Constraint("DistanceY", -1, 1, 0, 3, Q("480.215 mm")))
pocket4 = body.newObject("PartDesign::Pocket", "Pocket003")
pocket4.Profile = sketch19
pocket4.Length = Q("0.5 in")

sketch20 = body.newObject("Sketcher::SketchObject", "Sketch019")
sketch20.AttachmentSupport = (doc.getObject("XZ_Plane"), [""])
sketch20.MapMode = "FlatFace"
sketch20.addGeometry(Part.ArcOfCircle(Part.Circle(App.Vector(15.875, 599.275, 0), App.Vector(0, 0, 1), 4.765), math.radians(0), math.radians(270)), False)
sketch20.addGeometry(Part.ArcOfCircle(Part.Circle(App.Vector(15.875, 599.275, 0), App.Vector(0, 0, 1), 4.765), math.radians(-90), math.radians(0)), False)
sketch20.addConstraint(Sketcher.Constraint("Tangent", 0, 1, 1, 2))
sketch20.addConstraint(Sketcher.Constraint("Coincident", 1, 1, 0, 2))
sketch20.addConstraint(Sketcher.Constraint("Horizontal", 1, 3, 0, 1))
sketch20.addConstraint(Sketcher.Constraint("Vertical", 0, 3, 1, 1))
sketch20.addConstraint(Sketcher.Constraint("Radius", 0, Q("4.765 mm")))
sketch20.addConstraint(Sketcher.Constraint("DistanceX", -1, 1, 0, 3, Q("0.625 in")))
sketch20.addConstraint(Sketcher.Constraint("DistanceY", -1, 1, 0, 3, Q("599.275 mm")))
pocket5 = body.newObject("PartDesign::Pocket", "Pocket004")
pocket5.Profile = sketch20
pocket5.Length = Q("0.5 in")

sketch21 = body.newObject("Sketcher::SketchObject", "Sketch020")
sketch21.AttachmentSupport = (doc.getObject("XY_Plane"), [""])
sketch21.MapMode = "FlatFace"
sketch21.AttachmentOffset = App.Placement(App.Vector(0, 0, 725.48), App.Rotation())
sketch21.addGeometry(Part.LineSegment(App.Vector(9.52, 22.22, 0), App.Vector(9.52, 9.52, 0)), False)
sketch21.addGeometry(Part.LineSegment(App.Vector(9.52, 9.52, 0), App.Vector(22.22, 9.52, 0)), False)
sketch21.addGeometry(Part.LineSegment(App.Vector(22.22, 9.52, 0), App.Vector(22.22, 22.22, 0)), False)
sketch21.addGeometry(Part.LineSegment(App.Vector(22.22, 22.22, 0), App.Vector(9.52, 22.22, 0)), False)
sketch21.addConstraint(Sketcher.Constraint("Coincident", 0, 2, 1, 1))
sketch21.addConstraint(Sketcher.Constraint("Coincident", 1, 2, 2, 1))
sketch21.addConstraint(Sketcher.Constraint("Coincident", 2, 2, 3, 1))
sketch21.addConstraint(Sketcher.Constraint("Coincident", 3, 2, 0, 1))
sketch21.addConstraint(Sketcher.Constraint("Vertical", 0))
sketch21.addConstraint(Sketcher.Constraint("Horizontal", 1))
sketch21.addConstraint(Sketcher.Constraint("Vertical", 2))
sketch21.addConstraint(Sketcher.Constraint("Horizontal", 3))
sketch21.addConstraint(Sketcher.Constraint("Equal", 3, 0))
sketch21.addConstraint(Sketcher.Constraint("DistanceX", 1, 1, 1, 2, Q("0.5 in")))
sketch21.addConstraint(Sketcher.Constraint("DistanceX", -1, 1, 0, 2, Q("9.52 mm")))
sketch21.addConstraint(Sketcher.Constraint("DistanceY", -1, 1, 0, 2, Q("9.52 mm")))
pocket6 = body.newObject("PartDesign::Pocket", "Pocket005")
pocket6.Profile = sketch21
pocket6.Length = Q("29 in")

sketch22 = body.newObject("Sketcher::SketchObject", "Sketch021")
sketch22.AttachmentSupport = (doc.getObject("XY_Plane"), [""])
sketch22.MapMode = "FlatFace"
sketch22.addGeometry(Part.Circle(App.Vector(15.875, 15.875, 0), App.Vector(0, 0, 1), 9.525), False)
sketch22.addConstraint(Sketcher.Constraint("Diameter", 0, Q("0.75 in")))
sketch22.addConstraint(Sketcher.Constraint("DistanceX", -1, 1, 0, 3, Q("0.625 in")))
sketch22.addConstraint(Sketcher.Constraint("DistanceY", -1, 1, 0, 3, Q("0.625 in")))
pocket7 = body.newObject("PartDesign::Pocket", "Pocket006")
pocket7.Profile = sketch22
pocket7.Length = Q("0.25 in")
pocket7.Reversed = True

sketch23 = body.newObject("Sketcher::SketchObject", "Sketch022")
sketch23.AttachmentSupport = (doc.getObject("XZ_Plane"), [""])
sketch23.MapMode = "FlatFace"
sketch23.addGeometry(Part.LineSegment(App.Vector(0, 360.990007, 0), App.Vector(0, 0, 0)), False)
sketch23.addGeometry(Part.LineSegment(App.Vector(0, 0, 0), App.Vector(31.75, 0, 0)), False)
sketch23.addGeometry(Part.LineSegment(App.Vector(31.75, 0, 0), App.Vector(31.75, 360.990007, 0)), False)
sketch23.addGeometry(Part.LineSegment(App.Vector(31.75, 360.990007, 0), App.Vector(0, 360.990007, 0)), False)
sketch23.addConstraint(Sketcher.Constraint("Coincident", 0, 2, 1, 1))
sketch23.addConstraint(Sketcher.Constraint("Coincident", 1, 2, 2, 1))
sketch23.addConstraint(Sketcher.Constraint("Coincident", 2, 2, 3, 1))
sketch23.addConstraint(Sketcher.Constraint("Coincident", 3, 2, 0, 1))
sketch23.addConstraint(Sketcher.Constraint("Vertical", 0))
sketch23.addConstraint(Sketcher.Constraint("Horizontal", 1))
sketch23.addConstraint(Sketcher.Constraint("Vertical", 2))
sketch23.addConstraint(Sketcher.Constraint("Horizontal", 3))
sketch23.addConstraint(Sketcher.Constraint("Coincident", 0, 2, -1, 1))
sketch23.addConstraint(Sketcher.Constraint("DistanceX", 1, 1, 1, 2, Q("1.25 in")))
sketch23.addConstraint(Sketcher.Constraint("DistanceY", 0, 2, 0, 1, Q("360.990007 mm")))
pocket8 = body.newObject("PartDesign::Pocket", "Pocket007")
pocket8.Profile = sketch23
pocket8.Length = Q("3 in")

sketch24 = body.newObject("Sketcher::SketchObject", "Sketch023")
sketch24.AttachmentSupport = (doc.getObject("XY_Plane"), [""])
sketch24.MapMode = "FlatFace"
sketch24.AttachmentOffset = App.Placement(App.Vector(0, 0, 360.990007), App.Rotation())
sketch24.addGeometry(Part.LineSegment(App.Vector(3.175, 3.175, 0), App.Vector(3.175, 28.575, 0)), False)
sketch24.addGeometry(Part.LineSegment(App.Vector(3.175, 28.575, 0), App.Vector(28.575, 28.575, 0)), False)
sketch24.addGeometry(Part.LineSegment(App.Vector(28.575, 28.575, 0), App.Vector(28.575, 3.175, 0)), False)
sketch24.addGeometry(Part.LineSegment(App.Vector(28.575, 3.175, 0), App.Vector(3.175, 3.175, 0)), False)
sketch24.addConstraint(Sketcher.Constraint("Coincident", 0, 2, 1, 1))
sketch24.addConstraint(Sketcher.Constraint("Coincident", 1, 2, 2, 1))
sketch24.addConstraint(Sketcher.Constraint("Coincident", 2, 2, 3, 1))
sketch24.addConstraint(Sketcher.Constraint("Coincident", 3, 2, 0, 1))
sketch24.addConstraint(Sketcher.Constraint("Vertical", 0))
sketch24.addConstraint(Sketcher.Constraint("Horizontal", 1))
sketch24.addConstraint(Sketcher.Constraint("Vertical", 2))
sketch24.addConstraint(Sketcher.Constraint("Horizontal", 3))
sketch24.addConstraint(Sketcher.Constraint("Equal", 3, 0))
sketch24.addConstraint(Sketcher.Constraint("DistanceX", 1, 1, 1, 2, Q("1 in")))
sketch24.addConstraint(Sketcher.Constraint("DistanceX", -1, 1, 0, 2, Q("0.125 in")))
sketch24.addConstraint(Sketcher.Constraint("DistanceY", -1, 1, 0, 2, Q("1.125 in")))
pocket9 = body.newObject("PartDesign::Pocket", "Pocket008")
pocket9.Profile = sketch24
pocket9.Length = Q("0.5 in")
pocket9.Reversed = True

doc.recompute()
